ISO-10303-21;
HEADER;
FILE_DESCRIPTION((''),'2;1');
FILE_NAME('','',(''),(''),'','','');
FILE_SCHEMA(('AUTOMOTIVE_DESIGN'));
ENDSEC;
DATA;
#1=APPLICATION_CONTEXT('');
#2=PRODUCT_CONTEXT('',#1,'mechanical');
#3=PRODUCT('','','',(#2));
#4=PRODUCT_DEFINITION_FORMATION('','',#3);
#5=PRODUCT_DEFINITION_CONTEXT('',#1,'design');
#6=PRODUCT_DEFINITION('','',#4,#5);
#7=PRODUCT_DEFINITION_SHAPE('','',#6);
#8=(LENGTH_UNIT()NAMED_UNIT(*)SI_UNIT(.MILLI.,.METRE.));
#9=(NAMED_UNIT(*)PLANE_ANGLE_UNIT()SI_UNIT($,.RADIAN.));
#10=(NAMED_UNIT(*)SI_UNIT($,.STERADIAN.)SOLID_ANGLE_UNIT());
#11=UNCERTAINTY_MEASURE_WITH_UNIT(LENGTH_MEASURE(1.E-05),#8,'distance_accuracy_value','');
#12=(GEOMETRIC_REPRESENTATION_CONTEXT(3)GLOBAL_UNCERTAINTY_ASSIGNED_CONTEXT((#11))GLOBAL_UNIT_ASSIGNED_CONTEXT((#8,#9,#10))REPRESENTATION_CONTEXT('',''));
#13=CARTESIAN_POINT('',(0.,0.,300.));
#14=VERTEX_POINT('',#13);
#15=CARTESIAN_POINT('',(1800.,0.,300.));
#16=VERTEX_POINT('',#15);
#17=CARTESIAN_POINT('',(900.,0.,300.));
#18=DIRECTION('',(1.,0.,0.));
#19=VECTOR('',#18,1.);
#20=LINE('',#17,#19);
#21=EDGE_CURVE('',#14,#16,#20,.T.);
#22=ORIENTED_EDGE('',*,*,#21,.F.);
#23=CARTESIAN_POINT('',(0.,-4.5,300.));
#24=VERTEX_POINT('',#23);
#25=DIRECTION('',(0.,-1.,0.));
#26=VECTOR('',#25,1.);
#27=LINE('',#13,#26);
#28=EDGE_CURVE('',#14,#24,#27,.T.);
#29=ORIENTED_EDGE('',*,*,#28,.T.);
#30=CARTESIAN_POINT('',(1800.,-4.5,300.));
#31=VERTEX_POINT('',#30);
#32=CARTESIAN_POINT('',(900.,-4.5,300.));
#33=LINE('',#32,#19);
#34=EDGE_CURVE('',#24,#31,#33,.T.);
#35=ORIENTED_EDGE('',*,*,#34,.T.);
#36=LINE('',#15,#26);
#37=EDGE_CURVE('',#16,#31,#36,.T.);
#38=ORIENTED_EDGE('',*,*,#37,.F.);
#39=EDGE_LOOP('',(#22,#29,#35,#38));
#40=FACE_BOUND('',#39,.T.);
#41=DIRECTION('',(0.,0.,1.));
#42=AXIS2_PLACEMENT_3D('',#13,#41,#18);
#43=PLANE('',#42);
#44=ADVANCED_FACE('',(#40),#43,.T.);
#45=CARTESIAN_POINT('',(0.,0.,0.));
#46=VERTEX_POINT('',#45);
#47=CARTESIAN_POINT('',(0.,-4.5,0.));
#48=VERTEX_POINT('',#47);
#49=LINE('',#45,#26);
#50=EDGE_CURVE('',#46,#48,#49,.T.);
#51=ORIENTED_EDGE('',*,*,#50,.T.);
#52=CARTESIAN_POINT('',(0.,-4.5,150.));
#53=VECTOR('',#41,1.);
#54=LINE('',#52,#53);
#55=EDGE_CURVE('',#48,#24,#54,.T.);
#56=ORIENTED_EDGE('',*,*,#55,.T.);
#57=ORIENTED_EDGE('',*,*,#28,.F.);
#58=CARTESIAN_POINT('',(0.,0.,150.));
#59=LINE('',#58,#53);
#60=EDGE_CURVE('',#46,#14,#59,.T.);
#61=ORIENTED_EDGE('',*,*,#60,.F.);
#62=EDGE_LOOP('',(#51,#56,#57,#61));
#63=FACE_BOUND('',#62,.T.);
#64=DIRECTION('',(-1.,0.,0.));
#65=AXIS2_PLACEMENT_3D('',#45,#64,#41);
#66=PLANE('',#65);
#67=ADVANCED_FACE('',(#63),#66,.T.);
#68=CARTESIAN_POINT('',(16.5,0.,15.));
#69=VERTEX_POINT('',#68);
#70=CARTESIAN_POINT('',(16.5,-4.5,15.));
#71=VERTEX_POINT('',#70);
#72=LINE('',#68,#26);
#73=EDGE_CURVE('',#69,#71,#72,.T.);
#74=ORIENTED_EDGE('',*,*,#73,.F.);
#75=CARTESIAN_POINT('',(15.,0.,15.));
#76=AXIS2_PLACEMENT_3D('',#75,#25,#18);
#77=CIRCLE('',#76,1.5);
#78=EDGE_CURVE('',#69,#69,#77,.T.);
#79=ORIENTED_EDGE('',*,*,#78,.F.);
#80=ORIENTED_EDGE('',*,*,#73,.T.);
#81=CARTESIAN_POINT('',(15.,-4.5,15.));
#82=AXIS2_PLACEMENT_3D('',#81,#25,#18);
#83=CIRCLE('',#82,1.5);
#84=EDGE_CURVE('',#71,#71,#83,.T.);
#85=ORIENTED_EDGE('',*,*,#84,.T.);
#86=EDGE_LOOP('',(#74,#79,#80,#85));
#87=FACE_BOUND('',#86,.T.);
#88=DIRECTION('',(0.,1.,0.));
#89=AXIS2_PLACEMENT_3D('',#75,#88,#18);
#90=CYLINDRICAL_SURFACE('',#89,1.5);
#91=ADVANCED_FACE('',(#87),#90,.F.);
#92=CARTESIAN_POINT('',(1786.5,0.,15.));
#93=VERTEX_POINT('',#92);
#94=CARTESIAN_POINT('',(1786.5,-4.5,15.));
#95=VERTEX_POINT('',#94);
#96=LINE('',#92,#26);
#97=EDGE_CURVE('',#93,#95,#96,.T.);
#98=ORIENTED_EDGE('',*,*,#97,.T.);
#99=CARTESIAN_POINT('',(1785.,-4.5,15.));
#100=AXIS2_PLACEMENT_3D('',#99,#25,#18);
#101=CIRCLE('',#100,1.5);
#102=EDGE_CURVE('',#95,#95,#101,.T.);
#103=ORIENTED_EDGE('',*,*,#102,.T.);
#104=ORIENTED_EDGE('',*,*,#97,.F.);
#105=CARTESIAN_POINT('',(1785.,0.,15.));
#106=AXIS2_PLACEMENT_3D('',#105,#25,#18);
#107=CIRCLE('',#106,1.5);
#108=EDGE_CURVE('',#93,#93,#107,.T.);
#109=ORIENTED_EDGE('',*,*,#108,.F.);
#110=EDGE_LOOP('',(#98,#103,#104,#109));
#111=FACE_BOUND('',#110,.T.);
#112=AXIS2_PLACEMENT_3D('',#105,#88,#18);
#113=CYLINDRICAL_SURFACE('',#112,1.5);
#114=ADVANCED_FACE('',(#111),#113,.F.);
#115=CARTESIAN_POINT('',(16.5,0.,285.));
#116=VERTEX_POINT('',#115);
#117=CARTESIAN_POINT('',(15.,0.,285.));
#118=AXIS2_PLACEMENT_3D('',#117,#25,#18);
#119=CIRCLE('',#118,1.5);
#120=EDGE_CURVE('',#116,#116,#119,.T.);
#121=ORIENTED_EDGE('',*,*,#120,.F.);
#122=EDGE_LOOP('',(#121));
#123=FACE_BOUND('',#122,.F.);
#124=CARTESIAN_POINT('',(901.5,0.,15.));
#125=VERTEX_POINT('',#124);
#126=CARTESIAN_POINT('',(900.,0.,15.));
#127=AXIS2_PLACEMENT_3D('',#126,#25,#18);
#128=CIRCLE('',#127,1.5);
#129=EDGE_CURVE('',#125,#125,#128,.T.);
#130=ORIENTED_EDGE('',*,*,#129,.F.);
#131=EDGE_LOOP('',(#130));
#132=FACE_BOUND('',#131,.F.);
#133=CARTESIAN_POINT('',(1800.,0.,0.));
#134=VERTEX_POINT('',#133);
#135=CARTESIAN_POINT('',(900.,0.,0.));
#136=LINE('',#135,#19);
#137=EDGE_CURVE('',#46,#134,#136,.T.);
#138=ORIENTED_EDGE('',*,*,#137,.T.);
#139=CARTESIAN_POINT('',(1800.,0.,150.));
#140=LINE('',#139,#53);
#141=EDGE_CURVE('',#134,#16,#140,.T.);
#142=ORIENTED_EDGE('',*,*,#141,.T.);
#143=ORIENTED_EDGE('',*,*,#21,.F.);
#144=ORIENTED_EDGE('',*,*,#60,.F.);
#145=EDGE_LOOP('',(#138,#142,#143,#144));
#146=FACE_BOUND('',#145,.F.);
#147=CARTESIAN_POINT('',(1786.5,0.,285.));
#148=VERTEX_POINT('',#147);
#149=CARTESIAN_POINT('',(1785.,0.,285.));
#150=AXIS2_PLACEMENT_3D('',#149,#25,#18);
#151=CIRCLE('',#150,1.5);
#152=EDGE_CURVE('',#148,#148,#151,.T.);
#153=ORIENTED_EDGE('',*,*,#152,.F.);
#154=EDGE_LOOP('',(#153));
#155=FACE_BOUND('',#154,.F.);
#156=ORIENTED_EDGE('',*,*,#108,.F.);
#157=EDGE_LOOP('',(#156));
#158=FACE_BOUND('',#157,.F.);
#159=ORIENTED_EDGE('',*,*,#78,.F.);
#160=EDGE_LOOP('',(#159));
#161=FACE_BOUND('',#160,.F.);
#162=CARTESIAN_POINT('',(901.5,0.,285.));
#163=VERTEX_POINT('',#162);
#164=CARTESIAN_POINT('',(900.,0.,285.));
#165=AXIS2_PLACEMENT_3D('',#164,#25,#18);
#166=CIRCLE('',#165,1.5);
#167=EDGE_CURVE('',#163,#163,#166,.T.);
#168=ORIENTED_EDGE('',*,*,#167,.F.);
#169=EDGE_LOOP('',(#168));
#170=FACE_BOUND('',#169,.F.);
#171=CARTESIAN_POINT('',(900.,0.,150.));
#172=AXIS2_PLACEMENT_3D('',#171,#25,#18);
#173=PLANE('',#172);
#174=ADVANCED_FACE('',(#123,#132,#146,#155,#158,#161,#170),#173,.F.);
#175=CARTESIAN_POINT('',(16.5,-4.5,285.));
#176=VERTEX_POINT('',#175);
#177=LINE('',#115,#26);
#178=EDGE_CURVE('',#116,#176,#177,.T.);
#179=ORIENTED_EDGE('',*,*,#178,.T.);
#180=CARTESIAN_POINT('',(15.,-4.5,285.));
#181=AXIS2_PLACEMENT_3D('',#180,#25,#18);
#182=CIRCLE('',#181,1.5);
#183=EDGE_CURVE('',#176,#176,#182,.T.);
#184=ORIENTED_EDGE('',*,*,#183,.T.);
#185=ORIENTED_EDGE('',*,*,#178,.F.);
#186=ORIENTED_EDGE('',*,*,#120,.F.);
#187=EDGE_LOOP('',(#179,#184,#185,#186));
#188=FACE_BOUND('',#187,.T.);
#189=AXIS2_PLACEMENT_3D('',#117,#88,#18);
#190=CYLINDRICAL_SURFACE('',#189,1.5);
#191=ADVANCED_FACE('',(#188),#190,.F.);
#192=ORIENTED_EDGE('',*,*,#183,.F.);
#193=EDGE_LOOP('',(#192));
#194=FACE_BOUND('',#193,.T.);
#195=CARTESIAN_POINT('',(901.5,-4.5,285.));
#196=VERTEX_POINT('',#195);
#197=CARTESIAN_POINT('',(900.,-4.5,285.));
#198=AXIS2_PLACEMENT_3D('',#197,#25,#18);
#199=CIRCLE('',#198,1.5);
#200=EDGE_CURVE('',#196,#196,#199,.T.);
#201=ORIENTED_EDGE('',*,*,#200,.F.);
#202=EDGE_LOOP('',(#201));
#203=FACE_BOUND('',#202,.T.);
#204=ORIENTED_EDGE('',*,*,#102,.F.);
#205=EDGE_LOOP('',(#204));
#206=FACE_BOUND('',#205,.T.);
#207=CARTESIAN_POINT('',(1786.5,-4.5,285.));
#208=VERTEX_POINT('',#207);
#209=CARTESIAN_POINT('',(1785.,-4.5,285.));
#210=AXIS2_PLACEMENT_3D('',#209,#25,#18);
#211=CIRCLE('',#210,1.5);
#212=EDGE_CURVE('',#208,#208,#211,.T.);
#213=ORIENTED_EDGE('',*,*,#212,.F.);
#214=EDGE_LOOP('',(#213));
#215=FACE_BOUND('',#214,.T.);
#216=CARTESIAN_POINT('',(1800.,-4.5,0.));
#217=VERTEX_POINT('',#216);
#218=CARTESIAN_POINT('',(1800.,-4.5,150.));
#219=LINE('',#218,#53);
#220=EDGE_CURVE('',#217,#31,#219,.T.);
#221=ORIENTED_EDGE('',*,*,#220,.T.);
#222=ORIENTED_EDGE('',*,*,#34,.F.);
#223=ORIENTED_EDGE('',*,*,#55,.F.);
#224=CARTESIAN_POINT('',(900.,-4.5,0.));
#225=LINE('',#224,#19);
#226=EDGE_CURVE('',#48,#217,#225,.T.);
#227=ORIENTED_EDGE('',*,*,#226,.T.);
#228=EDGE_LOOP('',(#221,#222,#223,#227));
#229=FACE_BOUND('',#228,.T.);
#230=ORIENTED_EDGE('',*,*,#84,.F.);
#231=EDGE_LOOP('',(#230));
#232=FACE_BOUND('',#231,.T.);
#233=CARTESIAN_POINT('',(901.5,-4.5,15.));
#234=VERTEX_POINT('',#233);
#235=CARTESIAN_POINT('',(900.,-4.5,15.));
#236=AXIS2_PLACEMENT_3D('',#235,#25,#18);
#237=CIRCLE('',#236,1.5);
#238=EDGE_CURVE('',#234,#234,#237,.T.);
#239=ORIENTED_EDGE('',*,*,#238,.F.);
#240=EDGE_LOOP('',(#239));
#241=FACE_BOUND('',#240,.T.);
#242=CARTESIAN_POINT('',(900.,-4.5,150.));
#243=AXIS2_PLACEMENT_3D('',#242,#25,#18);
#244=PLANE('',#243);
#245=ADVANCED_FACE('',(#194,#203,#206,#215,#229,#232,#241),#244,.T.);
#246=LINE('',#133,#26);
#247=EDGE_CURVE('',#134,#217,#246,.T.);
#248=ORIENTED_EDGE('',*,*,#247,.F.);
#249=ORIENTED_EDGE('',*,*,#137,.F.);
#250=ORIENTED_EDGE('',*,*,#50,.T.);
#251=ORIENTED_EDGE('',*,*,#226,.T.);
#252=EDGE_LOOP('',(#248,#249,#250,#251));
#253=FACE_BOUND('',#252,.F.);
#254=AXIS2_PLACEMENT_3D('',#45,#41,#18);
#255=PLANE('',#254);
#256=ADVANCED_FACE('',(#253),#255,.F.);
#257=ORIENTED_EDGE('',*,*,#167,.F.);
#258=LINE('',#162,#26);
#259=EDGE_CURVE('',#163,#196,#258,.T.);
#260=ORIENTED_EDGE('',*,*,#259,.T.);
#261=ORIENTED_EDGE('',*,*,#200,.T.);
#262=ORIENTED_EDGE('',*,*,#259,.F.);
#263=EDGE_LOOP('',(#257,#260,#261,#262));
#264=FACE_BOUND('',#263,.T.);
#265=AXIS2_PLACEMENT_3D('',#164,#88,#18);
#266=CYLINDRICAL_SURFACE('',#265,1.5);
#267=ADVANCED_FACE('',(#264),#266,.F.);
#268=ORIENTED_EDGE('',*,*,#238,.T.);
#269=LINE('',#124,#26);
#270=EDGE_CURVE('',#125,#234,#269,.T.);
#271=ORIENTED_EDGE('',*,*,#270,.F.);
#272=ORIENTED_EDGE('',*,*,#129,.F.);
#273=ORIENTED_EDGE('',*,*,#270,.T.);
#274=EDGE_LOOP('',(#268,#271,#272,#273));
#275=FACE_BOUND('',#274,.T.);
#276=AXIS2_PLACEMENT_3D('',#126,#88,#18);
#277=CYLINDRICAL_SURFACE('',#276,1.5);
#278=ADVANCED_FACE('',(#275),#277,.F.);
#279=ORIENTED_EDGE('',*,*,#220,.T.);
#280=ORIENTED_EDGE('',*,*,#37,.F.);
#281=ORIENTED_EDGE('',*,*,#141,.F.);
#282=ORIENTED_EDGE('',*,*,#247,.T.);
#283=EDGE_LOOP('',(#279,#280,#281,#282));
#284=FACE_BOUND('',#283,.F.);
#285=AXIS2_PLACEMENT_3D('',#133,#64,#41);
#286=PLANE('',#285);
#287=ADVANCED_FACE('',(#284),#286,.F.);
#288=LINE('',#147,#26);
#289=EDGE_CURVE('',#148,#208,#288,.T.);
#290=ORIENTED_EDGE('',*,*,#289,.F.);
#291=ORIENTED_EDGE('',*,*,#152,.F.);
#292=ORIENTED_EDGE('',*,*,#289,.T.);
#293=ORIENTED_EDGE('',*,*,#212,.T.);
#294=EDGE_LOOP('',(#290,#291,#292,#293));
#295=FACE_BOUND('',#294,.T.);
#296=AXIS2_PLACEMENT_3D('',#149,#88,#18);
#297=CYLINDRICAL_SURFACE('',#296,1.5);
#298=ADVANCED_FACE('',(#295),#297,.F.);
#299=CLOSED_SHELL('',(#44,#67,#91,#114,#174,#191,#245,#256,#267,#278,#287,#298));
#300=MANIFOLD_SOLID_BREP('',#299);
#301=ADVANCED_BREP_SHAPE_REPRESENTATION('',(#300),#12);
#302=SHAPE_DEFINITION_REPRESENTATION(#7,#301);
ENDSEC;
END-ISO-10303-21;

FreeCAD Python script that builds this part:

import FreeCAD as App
import Part
import Sketcher
Q = App.Units.Quantity


def add_polygon(sketch, points):
    """Adds a closed chain of lines whose ends are joined by coincident constraints."""
    first, n = sketch.GeometryCount, len(points)
    for a, b in zip(points, points[1:] + points[:1]):
        sketch.addGeometry(Part.LineSegment(App.Vector(*a, 0), App.Vector(*b, 0)), False)
    for i in range(n):
        sketch.addConstraint(Sketcher.Constraint("Coincident", first + i, 2, first + (i + 1) % n, 1))

doc = App.newDocument("Part")
params = doc.addObject("Spreadsheet::Sheet", "Params")
for row, (alias, value) in enumerate([
    ("sketch1_diameter", "3 mm"),
    ("sketch1_width", "1800 mm"),
    ("sketch1_height", "300 mm"),
    ("pad1_length", "4.5 mm"),
], start=1):
    params.set(f"A{row}", alias)
    params.set(f"B{row}", "=" + value)
    params.setAlias(f"B{row}", alias)

body = doc.addObject("PartDesign::Body", "Body")

# Sketch on XZ plane
sketch1 = body.newObject("Sketcher::SketchObject", "Sketch")
sketch1.AttachmentSupport = (doc.getObject("XZ_Plane"), [""])
sketch1.MapMode = "FlatFace"
add_polygon(sketch1, [(0, 300), (0, 0), (1800, 0), (1800, 300)])  # lines 0-3
sketch1.addGeometry(Part.Circle(App.Vector(15, 15, 0), App.Vector(0, 0, 1), 1.5), False)  # 4
sketch1.addGeometry(Part.Circle(App.Vector(900, 15, 0), App.Vector(0, 0, 1), 1.5), False)  # 5
sketch1.addGeometry(Part.Circle(App.Vector(1785, 15, 0), App.Vector(0, 0, 1), 1.5), False)  # 6
sketch1.addGeometry(Part.Circle(App.Vector(15, 285, 0), App.Vector(0, 0, 1), 1.5), False)  # 7
sketch1.addGeometry(Part.Circle(App.Vector(900, 285, 0), App.Vector(0, 0, 1), 1.5), False)  # 8
sketch1.addGeometry(Part.Circle(App.Vector(1785, 285, 0), App.Vector(0, 0, 1), 1.5), False)  # 9
sketch1.addConstraint(Sketcher.Constraint("Vertical", 0))
sketch1.addConstraint(Sketcher.Constraint("Horizontal", 1))
sketch1.addConstraint(Sketcher.Constraint("Vertical", 2))
sketch1.addConstraint(Sketcher.Constraint("Horizontal", 3))
sketch1.addConstraint(Sketcher.Constraint("Coincident", 0, 2, -1, 1))
sketch1.addConstraint(Sketcher.Constraint("Equal", 4, 5))
sketch1.addConstraint(Sketcher.Constraint("Equal", 5, 6))
sketch1.addConstraint(Sketcher.Constraint("Equal", 6, 7))
sketch1.addConstraint(Sketcher.Constraint("Equal", 7, 8))
sketch1.addConstraint(Sketcher.Constraint("Equal", 8, 9))
sketch1.addConstraint(Sketcher.Constraint("Horizontal", 4, 3, 5, 3))
sketch1.addConstraint(Sketcher.Constraint("Horizontal", 5, 3, 6, 3))
sketch1.addConstraint(Sketcher.Constraint("Horizontal", 7, 3, 8, 3))
sketch1.addConstraint(Sketcher.Constraint("Horizontal", 8, 3, 9, 3))
sketch1.addConstraint(Sketcher.Constraint("Vertical", 4, 3, 7, 3))
sketch1.addConstraint(Sketcher.Constraint("Vertical", 5, 3, 8, 3))
sketch1.addConstraint(Sketcher.Constraint("Vertical", 6, 3, 9, 3))
sketch1.addConstraint(Sketcher.Constraint("Diameter", 4, Q("3 mm")))
sketch1.addConstraint(Sketcher.Constraint("DistanceX", 1, 1, 1, 2, Q("1800 mm")))
sketch1.addConstraint(Sketcher.Constraint("DistanceY", 0, 2, 0, 1, Q("300 mm")))
sketch1.addConstraint(Sketcher.Constraint("DistanceX", -1, 1, 4, 3, Q("15 mm")))
sketch1.addConstraint(Sketcher.Constraint("DistanceY", -1, 1, 4, 3, Q("15 mm")))
sketch1.addConstraint(Sketcher.Constraint("DistanceX", -1, 1, 5, 3, Q("900 mm")))
sketch1.addConstraint(Sketcher.Constraint("DistanceX", -1, 1, 6, 3, Q("1785 mm")))
sketch1.addConstraint(Sketcher.Constraint("DistanceY", -1, 1, 7, 3, Q("285 mm")))
sketch1.setExpression("Constraints[21]", "Params.sketch1_diameter")
sketch1.setExpression("Constraints[22]", "Params.sketch1_width")
sketch1.setExpression("Constraints[23]", "Params.sketch1_height")
pad1 = body.newObject("PartDesign::Pad", "Pad")
pad1.Profile = sketch1
pad1.setExpression("Length", "Params.pad1_length")

doc.recompute()
